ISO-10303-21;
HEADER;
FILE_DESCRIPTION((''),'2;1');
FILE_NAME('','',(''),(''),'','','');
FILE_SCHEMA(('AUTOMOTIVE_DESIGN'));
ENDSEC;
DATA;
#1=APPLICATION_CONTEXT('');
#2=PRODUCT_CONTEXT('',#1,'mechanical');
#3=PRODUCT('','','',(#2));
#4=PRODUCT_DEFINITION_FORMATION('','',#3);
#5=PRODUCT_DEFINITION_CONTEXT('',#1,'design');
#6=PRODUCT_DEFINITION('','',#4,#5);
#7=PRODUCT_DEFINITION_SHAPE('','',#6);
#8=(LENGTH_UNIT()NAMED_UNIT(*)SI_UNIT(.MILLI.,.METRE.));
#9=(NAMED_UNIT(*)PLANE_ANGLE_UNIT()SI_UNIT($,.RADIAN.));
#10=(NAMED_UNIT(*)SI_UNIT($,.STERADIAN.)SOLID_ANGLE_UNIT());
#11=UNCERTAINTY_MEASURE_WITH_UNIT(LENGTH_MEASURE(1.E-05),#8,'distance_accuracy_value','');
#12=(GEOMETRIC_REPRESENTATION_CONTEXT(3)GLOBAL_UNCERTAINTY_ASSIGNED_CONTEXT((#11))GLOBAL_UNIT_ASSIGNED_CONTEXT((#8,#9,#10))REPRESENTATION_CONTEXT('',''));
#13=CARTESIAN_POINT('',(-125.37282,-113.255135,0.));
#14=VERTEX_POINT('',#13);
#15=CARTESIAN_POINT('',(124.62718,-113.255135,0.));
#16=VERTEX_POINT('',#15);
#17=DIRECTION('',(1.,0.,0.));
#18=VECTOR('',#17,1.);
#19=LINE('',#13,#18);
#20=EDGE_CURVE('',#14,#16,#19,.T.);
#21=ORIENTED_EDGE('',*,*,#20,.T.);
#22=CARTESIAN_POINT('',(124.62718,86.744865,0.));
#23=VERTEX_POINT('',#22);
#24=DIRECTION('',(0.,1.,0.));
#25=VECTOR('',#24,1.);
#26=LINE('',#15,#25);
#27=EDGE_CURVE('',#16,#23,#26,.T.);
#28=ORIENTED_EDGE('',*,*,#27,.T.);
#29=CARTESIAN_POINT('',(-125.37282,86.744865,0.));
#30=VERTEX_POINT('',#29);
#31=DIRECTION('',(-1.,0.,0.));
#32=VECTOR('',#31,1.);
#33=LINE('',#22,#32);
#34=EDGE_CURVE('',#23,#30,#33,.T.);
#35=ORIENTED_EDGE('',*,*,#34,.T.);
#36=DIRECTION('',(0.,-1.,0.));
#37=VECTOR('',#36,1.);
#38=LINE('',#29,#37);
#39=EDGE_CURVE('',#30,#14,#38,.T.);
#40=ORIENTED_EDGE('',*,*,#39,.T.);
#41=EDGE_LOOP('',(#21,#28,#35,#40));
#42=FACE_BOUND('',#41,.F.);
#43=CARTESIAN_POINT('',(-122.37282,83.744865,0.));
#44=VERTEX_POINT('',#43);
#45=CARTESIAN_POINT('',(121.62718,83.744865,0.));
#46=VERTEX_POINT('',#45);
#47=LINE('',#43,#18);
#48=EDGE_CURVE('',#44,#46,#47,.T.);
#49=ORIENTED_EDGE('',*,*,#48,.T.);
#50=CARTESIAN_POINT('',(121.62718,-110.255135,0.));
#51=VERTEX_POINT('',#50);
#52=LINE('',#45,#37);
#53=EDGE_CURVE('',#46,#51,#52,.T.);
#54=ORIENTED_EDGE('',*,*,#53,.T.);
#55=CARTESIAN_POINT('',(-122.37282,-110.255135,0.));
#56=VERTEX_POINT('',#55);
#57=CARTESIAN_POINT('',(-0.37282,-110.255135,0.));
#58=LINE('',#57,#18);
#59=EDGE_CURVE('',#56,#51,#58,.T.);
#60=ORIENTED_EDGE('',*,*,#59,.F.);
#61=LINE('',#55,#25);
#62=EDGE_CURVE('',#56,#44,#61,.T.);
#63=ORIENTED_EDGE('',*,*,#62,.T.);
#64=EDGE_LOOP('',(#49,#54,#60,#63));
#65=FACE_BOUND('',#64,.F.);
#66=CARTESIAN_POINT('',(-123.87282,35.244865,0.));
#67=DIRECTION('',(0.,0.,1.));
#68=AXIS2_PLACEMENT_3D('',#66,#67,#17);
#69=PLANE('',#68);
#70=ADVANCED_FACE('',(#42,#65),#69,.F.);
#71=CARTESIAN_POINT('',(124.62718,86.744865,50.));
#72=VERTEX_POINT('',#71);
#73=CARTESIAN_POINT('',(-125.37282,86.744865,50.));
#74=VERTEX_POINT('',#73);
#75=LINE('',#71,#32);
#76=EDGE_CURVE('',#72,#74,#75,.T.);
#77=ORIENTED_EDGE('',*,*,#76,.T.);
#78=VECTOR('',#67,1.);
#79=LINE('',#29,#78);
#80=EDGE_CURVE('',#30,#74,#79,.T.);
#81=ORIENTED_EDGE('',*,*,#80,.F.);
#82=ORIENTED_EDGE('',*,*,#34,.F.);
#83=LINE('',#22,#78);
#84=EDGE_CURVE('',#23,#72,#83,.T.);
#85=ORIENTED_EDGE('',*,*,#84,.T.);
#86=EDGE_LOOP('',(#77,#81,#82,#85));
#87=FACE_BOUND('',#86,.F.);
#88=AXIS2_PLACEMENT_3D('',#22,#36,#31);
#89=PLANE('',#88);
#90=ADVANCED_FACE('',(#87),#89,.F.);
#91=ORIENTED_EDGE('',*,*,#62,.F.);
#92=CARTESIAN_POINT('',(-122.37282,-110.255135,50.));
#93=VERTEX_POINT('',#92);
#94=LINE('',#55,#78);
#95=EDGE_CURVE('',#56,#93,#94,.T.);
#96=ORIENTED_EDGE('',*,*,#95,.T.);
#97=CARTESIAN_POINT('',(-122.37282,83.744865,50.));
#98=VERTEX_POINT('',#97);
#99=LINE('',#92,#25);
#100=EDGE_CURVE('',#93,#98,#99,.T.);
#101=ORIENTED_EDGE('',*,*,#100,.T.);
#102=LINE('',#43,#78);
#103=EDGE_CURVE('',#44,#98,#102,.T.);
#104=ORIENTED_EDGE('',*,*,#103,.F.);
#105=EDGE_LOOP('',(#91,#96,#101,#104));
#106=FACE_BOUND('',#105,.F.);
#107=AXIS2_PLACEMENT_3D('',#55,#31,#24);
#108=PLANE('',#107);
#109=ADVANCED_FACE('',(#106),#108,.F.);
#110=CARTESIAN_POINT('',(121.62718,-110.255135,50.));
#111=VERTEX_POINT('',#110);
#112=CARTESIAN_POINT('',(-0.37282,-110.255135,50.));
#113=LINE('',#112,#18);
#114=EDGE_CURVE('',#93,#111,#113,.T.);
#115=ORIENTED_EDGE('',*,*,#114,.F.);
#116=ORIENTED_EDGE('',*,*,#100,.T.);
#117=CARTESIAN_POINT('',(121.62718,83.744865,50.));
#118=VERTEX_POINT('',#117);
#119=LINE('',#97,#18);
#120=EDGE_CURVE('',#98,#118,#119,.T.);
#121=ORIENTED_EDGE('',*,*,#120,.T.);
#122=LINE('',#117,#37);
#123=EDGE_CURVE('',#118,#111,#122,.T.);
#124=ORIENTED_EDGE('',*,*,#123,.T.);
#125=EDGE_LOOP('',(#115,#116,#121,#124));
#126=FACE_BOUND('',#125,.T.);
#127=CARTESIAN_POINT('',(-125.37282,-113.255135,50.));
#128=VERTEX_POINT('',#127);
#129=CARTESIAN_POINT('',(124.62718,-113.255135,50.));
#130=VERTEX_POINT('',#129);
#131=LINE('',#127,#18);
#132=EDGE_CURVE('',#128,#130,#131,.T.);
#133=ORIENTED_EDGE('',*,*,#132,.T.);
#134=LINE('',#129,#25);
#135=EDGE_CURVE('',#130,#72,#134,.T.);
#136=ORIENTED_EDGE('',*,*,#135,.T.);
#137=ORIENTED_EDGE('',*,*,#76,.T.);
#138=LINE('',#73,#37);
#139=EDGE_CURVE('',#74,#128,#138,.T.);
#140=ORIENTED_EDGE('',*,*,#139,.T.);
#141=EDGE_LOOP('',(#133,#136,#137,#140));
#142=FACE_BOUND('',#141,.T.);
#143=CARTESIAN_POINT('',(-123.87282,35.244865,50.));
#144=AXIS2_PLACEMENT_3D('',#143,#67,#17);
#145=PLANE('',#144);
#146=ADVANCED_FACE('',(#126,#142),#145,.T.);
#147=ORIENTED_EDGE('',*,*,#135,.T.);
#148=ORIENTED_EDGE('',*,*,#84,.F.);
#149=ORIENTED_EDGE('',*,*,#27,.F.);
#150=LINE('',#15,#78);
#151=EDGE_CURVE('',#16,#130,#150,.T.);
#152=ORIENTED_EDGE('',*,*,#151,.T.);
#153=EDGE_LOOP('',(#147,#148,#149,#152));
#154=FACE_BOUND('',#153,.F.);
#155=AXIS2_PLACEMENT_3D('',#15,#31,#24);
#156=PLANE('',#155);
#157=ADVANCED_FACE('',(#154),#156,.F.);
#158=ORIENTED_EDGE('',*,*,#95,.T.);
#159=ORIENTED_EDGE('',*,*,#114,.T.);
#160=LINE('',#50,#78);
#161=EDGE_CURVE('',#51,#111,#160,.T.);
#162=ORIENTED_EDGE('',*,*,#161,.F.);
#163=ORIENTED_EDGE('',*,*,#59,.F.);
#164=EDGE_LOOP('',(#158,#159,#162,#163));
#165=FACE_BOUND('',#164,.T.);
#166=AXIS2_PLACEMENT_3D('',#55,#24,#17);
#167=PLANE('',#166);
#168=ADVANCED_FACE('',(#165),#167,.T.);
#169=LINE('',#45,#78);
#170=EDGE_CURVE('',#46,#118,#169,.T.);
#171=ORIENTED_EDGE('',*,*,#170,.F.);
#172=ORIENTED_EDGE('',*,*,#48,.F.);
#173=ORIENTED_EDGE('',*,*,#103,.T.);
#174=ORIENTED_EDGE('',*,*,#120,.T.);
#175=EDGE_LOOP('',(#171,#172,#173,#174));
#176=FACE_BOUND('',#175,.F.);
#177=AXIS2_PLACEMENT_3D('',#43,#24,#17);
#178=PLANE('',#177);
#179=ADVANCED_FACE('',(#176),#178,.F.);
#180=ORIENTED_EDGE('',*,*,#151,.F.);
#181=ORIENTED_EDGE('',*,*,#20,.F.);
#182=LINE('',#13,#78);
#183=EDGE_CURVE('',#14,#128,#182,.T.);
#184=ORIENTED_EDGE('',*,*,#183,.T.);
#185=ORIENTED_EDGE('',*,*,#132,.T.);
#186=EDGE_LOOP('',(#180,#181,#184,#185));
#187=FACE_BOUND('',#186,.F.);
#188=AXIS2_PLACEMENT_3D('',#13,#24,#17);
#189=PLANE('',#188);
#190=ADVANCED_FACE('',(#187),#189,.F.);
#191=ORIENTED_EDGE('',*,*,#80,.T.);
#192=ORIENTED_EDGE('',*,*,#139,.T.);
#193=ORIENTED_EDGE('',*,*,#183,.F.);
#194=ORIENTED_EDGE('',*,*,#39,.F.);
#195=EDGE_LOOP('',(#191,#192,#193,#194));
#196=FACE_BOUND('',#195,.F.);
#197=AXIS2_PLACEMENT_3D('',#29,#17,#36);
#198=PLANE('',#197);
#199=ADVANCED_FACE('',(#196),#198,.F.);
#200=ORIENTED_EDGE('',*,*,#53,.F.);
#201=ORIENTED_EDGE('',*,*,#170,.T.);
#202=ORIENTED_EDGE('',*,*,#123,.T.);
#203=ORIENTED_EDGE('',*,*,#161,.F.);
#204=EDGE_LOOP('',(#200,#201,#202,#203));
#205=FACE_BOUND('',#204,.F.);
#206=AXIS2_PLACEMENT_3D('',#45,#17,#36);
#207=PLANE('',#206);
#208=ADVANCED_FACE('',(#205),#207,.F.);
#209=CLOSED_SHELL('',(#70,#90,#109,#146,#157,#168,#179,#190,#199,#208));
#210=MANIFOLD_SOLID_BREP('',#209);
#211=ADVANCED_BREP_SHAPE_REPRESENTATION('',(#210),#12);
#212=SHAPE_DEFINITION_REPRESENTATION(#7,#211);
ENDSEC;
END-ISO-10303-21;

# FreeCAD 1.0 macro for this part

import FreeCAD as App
import Part
import Sketcher

V = App.Vector
Q = App.Units.Quantity

doc = App.newDocument("Part")
params = doc.addObject("Spreadsheet::Sheet", "Params")
for row, (alias, value) in enumerate([
    ("sketch1_width", "250 mm"),
    ("sketch1_width2", "244 mm"),
    ("sketch1_height", "200 mm"),
    ("sketch1_height2", "194 mm"),
    ("pad1_length", "50 mm"),
], start=1):
    params.set(f"A{row}", alias)
    params.set(f"B{row}", "=" + value)
    params.setAlias(f"B{row}", alias)

body = doc.addObject("PartDesign::Body", "Body")

# Sketch on XY plane
sketch1 = doc.addObject("Sketcher::SketchObject", "Sketch")
body.addObject(sketch1)
sketch1.AttachmentSupport = (doc.XY_Plane, [""])
sketch1.MapMode = "FlatFace"
sketch1.addGeometry([
    Part.LineSegment(V(-125, 87, 0), V(-125, -113, 0)),  # 0
    Part.LineSegment(V(-125, -113, 0), V(125, -113, 0)),  # 1
    Part.LineSegment(V(125, -113, 0), V(125, 87, 0)),  # 2
    Part.LineSegment(V(125, 87, 0), V(-125, 87, 0)),  # 3
    Part.LineSegment(V(122, -110, 0), V(-122, -110, 0)),  # 4
    Part.LineSegment(V(-122, -110, 0), V(-122, 84, 0)),  # 5
    Part.LineSegment(V(-122, 84, 0), V(122, 84, 0)),  # 6
    Part.LineSegment(V(122, 84, 0), V(122, -110, 0)),  # 7
], False)
sketch1.addConstraint([
    Sketcher.Constraint("Coincident", 0, 2, 1, 1),
    Sketcher.Constraint("Coincident", 1, 2, 2, 1),
    Sketcher.Constraint("Coincident", 2, 2, 3, 1),
    Sketcher.Constraint("Coincident", 3, 2, 0, 1),
    Sketcher.Constraint("Coincident", 4, 2, 5, 1),
    Sketcher.Constraint("Coincident", 5, 2, 6, 1),
    Sketcher.Constraint("Coincident", 6, 2, 7, 1),
    Sketcher.Constraint("Coincident", 7, 2, 4, 1),
    Sketcher.Constraint("Vertical", 0),
    Sketcher.Constraint("Horizontal", 1),
    Sketcher.Constraint("Vertical", 2),
    Sketcher.Constraint("Horizontal", 3),
    Sketcher.Constraint("Horizontal", 4),
    Sketcher.Constraint("Vertical", 5),
    Sketcher.Constraint("Horizontal", 6),
    Sketcher.Constraint("Vertical", 7),
    Sketcher.Constraint("DistanceX", 1, 1, 1, 2, Q("250 mm")),
    Sketcher.Constraint("DistanceX", 4, 2, 4, 1, Q("244 mm")),
    Sketcher.Constraint("DistanceY", 0, 2, 0, 1, Q("200 mm")),
    Sketcher.Constraint("DistanceY", 5, 1, 5, 2, Q("194 mm")),
    Sketcher.Constraint("DistanceX", 0, 2, 4, 2, Q("3 mm")),
    Sketcher.Constraint("DistanceY", 0, 2, 4, 2, Q("3 mm")),
    Sketcher.Constraint("DistanceX", 0, 2, -1, 1, Q("125.37282 mm")),
    Sketcher.Constraint("DistanceY", 0, 2, -1, 1, Q("113.255135 mm")),
])
sketch1.setExpression("Constraints[16]", "Params.sketch1_width")
sketch1.setExpression("Constraints[17]", "Params.sketch1_width2")
sketch1.setExpression("Constraints[18]", "Params.sketch1_height")
sketch1.setExpression("Constraints[19]", "Params.sketch1_height2")
pad1 = doc.addObject("PartDesign::Pad", "Pad")
body.addObject(pad1)
pad1.Profile = sketch1
pad1.setExpression("Length", "Params.pad1_length")

doc.recompute()
